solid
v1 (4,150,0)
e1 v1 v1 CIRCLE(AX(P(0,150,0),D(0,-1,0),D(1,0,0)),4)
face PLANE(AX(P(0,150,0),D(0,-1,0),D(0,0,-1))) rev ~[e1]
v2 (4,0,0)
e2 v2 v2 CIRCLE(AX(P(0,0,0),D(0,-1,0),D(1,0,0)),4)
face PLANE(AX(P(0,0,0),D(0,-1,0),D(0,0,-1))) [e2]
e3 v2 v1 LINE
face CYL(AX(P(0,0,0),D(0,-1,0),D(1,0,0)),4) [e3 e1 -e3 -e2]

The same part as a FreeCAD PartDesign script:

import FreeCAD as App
import Part
import Sketcher

doc = App.newDocument("Part")
body = doc.addObject("PartDesign::Body", "Body")

# Sketch on XZ plane
sketch1 = body.newObject("Sketcher::SketchObject", "Sketch")
sketch1.AttachmentSupport = (doc.getObject("XZ_Plane"), [""])
sketch1.MapMode = "FlatFace"
sketch1.addGeometry(Part.Circle(App.Vector(0, 0, 0), App.Vector(0, 0, 1), 4), False)
sketch1.addConstraint([
    Sketcher.Constraint("Coincident", 0, 3, -1, 1),
    Sketcher.Constraint("Diameter", 0, 8.0),
])
pad1 = body.newObject("PartDesign::Pad", "Pad")
pad1.Profile = sketch1
pad1.Length = 150
pad1.Reversed = True

doc.recompute()
